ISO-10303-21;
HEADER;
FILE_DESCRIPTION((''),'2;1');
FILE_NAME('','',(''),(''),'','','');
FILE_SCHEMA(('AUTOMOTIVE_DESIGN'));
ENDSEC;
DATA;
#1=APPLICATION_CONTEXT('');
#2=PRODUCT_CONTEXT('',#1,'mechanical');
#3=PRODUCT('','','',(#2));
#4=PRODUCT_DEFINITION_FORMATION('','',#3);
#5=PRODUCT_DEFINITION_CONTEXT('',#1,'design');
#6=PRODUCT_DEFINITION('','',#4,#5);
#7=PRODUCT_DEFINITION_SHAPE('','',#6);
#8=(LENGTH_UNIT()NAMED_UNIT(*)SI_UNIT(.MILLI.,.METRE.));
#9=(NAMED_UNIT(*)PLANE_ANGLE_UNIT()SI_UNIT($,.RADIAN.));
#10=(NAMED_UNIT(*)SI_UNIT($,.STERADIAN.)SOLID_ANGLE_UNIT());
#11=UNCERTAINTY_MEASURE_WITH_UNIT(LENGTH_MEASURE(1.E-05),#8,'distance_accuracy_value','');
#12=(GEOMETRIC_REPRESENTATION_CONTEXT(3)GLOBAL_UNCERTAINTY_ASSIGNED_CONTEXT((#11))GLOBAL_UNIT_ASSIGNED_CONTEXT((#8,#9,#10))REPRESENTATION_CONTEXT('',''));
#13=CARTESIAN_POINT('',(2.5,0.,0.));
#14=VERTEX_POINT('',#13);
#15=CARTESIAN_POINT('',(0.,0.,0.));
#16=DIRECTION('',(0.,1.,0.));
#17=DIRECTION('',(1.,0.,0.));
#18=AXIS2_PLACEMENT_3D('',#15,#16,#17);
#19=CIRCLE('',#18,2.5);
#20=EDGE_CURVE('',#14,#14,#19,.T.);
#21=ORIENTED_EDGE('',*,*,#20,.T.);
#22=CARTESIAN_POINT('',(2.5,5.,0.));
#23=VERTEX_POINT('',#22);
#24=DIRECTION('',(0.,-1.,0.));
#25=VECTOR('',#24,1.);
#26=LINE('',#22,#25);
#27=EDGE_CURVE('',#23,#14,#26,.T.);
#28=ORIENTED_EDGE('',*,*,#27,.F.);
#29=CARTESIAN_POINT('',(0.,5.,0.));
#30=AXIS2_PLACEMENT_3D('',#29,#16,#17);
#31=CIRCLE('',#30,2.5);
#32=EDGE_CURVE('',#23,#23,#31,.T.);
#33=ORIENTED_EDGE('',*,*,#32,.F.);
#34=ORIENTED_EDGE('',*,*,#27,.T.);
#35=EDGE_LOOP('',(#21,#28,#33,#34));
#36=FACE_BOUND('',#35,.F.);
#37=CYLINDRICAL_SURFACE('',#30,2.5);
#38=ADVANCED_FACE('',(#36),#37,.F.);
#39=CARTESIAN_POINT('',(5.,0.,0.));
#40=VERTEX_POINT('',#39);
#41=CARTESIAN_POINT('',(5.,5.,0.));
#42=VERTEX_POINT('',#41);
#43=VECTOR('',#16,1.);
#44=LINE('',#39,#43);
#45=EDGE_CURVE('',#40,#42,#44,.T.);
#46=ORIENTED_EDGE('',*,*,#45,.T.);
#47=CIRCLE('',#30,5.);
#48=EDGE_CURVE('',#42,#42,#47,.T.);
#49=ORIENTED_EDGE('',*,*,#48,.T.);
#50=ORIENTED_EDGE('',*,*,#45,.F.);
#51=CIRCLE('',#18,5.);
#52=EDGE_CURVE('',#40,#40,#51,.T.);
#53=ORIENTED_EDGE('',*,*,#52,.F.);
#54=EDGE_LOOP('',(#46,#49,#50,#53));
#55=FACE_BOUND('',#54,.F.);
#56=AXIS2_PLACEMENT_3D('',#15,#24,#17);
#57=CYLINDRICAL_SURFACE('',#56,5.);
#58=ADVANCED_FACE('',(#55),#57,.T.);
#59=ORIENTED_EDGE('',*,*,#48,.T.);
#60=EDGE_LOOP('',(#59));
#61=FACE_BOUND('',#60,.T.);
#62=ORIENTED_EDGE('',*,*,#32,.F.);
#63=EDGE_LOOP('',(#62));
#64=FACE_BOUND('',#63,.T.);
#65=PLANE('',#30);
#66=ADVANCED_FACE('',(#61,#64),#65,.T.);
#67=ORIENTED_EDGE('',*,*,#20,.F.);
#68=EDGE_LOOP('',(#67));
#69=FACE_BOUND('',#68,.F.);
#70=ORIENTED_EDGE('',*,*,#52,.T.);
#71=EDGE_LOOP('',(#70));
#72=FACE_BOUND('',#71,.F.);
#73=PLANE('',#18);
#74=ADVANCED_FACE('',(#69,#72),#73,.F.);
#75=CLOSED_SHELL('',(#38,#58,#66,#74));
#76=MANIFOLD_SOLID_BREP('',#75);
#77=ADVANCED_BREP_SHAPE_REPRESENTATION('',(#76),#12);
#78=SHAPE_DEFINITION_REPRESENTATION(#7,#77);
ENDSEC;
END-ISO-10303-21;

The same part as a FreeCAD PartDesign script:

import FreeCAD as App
import Part
import Sketcher

V = App.Vector
Q = App.Units.Quantity

doc = App.newDocument("Part")
body = doc.addObject("PartDesign::Body", "Body")

# Sketch on XZ plane
sketch1 = body.newObject("Sketcher::SketchObject", "Sketch")
sketch1.AttachmentSupport = (doc.getObject("XZ_Plane"), [""])
sketch1.MapMode = "FlatFace"
sketch1.addGeometry(Part.Circle(V(0, 0, 0), V(0, 0, 1), 5), False)
sketch1.addConstraint([
    Sketcher.Constraint("Coincident", 0, 3, -1, 1),
    Sketcher.Constraint("Diameter", 0, Q("10 mm")),
])
pad1 = body.newObject("PartDesign::Pad", "Pad")
pad1.Profile = sketch1
pad1.Length = 5
pad1.Reversed = True

# Sketch on XZ plane
sketch2 = body.newObject("Sketcher::SketchObject", "Sketch001")
sketch2.AttachmentSupport = (doc.getObject("XZ_Plane"), [""])
sketch2.MapMode = "FlatFace"
sketch2.AttachmentOffset = App.Placement(V(0, 0, -5), App.Rotation())
sketch2.addGeometry(Part.Circle(V(0, 0, 0), V(0, 0, 1), 2.5), False)
sketch2.addConstraint([
    Sketcher.Constraint("Coincident", 0, 3, -1, 1),
    Sketcher.Constraint("Diameter", 0, Q("5 mm")),
])
pocket1 = body.newObject("PartDesign::Pocket", "Pocket")
pocket1.Profile = sketch2
pocket1.Type = "ThroughAll"
pocket1.Reversed = True

doc.recompute()
